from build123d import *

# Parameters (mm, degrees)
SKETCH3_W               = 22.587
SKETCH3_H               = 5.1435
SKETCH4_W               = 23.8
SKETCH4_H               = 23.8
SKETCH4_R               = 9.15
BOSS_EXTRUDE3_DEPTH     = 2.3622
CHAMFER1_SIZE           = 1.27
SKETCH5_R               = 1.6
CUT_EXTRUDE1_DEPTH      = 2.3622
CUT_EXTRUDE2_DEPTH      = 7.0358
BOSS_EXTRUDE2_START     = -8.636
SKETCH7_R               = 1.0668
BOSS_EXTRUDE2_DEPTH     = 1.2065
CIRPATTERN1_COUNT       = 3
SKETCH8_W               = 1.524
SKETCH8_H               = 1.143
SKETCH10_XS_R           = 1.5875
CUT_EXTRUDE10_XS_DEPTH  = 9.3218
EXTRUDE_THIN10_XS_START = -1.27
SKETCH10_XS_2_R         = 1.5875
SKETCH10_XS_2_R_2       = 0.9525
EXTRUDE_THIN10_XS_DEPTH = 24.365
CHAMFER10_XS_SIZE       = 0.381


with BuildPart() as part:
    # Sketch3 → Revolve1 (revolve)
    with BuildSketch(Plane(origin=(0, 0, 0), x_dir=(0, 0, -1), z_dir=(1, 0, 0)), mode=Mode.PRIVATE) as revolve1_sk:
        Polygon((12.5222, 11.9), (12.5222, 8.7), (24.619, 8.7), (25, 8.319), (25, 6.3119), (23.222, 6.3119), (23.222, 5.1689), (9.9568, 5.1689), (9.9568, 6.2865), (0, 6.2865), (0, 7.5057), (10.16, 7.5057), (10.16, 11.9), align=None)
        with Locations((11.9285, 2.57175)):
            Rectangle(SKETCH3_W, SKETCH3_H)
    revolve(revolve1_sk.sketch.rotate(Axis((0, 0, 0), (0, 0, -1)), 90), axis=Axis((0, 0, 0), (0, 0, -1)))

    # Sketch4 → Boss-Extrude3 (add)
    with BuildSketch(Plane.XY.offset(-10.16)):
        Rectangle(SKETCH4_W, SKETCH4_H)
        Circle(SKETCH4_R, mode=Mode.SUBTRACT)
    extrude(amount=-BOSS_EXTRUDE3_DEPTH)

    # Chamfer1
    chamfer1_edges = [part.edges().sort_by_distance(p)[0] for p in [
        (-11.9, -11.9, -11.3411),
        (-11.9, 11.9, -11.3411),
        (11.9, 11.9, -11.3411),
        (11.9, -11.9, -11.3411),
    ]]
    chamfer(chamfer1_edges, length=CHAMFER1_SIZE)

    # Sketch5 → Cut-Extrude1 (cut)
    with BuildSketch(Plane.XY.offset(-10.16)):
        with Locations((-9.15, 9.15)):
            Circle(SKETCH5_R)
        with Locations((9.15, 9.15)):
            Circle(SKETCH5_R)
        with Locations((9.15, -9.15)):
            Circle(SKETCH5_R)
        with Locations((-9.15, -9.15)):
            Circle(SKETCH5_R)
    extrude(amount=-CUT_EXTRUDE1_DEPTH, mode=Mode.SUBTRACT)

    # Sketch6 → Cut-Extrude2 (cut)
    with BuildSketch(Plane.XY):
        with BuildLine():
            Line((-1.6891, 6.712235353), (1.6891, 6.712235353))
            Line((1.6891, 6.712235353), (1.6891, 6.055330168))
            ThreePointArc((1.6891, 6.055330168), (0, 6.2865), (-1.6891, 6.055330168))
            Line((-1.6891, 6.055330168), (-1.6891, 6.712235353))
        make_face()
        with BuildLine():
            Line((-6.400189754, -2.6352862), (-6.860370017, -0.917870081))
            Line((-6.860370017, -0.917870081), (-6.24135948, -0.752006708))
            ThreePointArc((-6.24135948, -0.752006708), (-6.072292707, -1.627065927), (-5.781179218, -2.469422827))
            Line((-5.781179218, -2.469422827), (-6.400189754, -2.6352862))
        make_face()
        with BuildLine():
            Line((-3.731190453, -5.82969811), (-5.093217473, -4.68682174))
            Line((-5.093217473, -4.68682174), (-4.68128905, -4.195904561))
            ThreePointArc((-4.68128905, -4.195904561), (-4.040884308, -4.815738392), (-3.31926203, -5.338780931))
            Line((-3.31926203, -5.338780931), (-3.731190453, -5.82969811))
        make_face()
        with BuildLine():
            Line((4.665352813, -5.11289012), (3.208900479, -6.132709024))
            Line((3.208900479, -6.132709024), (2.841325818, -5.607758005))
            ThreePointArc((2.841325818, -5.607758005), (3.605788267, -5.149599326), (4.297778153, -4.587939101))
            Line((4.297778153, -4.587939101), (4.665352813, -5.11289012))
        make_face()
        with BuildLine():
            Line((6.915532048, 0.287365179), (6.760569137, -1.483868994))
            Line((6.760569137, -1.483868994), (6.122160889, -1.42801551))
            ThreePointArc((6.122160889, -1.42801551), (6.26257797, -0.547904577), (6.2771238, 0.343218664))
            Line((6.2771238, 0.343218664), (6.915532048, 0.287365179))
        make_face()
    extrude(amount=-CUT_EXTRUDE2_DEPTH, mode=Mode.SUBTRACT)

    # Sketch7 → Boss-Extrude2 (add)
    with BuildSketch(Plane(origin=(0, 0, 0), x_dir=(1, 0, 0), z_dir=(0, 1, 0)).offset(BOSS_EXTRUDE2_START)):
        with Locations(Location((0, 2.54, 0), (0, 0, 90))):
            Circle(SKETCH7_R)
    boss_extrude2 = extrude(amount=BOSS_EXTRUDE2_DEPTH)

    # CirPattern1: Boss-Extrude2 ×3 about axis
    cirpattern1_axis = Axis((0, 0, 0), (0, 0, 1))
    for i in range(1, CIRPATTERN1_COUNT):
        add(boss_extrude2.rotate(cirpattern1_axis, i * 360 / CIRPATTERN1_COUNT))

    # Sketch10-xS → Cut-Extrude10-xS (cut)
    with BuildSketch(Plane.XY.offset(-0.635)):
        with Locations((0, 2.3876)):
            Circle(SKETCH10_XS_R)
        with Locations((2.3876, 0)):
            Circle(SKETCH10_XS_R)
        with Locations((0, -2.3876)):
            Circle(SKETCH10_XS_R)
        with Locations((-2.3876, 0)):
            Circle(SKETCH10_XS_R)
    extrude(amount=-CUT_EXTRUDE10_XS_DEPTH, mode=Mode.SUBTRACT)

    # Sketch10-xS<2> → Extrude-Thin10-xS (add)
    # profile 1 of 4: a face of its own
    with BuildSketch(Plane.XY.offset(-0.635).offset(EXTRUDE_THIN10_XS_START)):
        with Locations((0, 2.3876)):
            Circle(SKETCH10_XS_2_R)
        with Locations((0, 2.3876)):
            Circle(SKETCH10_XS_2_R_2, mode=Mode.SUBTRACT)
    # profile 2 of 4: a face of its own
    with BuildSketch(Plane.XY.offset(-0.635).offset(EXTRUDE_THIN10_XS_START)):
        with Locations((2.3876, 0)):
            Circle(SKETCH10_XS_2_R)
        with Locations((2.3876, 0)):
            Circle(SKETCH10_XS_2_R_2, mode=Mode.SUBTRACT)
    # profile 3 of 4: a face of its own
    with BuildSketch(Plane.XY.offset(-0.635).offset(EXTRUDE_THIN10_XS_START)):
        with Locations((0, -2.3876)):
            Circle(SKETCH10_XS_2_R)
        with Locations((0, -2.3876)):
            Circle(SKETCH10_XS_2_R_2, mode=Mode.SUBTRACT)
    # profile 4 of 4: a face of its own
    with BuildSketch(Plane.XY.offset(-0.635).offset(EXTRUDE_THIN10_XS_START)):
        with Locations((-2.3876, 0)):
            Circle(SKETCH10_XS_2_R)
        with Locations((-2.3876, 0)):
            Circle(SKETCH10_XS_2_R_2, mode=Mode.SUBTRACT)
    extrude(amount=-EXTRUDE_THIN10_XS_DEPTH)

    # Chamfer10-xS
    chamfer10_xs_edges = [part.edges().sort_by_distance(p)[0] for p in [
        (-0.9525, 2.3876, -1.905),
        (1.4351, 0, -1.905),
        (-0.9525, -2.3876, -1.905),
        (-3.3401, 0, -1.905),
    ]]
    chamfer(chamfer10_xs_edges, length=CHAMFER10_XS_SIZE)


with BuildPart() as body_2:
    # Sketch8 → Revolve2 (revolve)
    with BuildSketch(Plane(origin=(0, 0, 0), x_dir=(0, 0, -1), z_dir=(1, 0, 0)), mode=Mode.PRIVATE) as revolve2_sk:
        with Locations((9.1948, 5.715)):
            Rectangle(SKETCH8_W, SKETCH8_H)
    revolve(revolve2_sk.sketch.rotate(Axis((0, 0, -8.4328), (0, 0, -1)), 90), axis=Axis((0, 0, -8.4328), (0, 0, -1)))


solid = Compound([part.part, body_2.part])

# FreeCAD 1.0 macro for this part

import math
import FreeCAD as App
import Part
import Sketcher
from FreeCAD import Vector
Q = App.Units.Quantity


def edges_at(feature, points):
    """Names of the edges that pass closest to the given points."""
    edges = feature.Shape.Edges
    near = lambda p: min(range(len(edges)), key=lambda i: edges[i].distToShape(Part.Vertex(*p))[0])
    return sorted({f"Edge{near(p) + 1}" for p in points})

doc = App.newDocument("Part")
body = doc.addObject("PartDesign::Body", "Body")
body.AllowCompound = True

# Sketch on YZ plane
sketch1 = doc.addObject("Sketcher::SketchObject", "Sketch")
body.addObject(sketch1)
sketch1.AttachmentSupport = (doc.YZ_Plane, [""])
sketch1.MapMode = "FlatFace"
sketch1.addGeometry([
    Part.LineSegment(Vector(8.7, -12.5, 0), Vector(11.9, -12.5, 0)),  # 0
    Part.LineSegment(Vector(11.9, -12.5, 0), Vector(11.9, -10.2, 0)),  # 1
    Part.LineSegment(Vector(11.9, -10.2, 0), Vector(7.5, -10.2, 0)),  # 2
    Part.LineSegment(Vector(7.5, -10.2, 0), Vector(7.5, 0, 0)),  # 3
    Part.LineSegment(Vector(7.5, 0, 0), Vector(6.3, 0, 0)),  # 4
    Part.LineSegment(Vector(6.3, 0, 0), Vector(6.3, -10, 0)),  # 5
    Part.LineSegment(Vector(6.3, -10, 0), Vector(5.2, -10, 0)),  # 6
    Part.LineSegment(Vector(5.2, -10, 0), Vector(5.2, -23.2, 0)),  # 7
    Part.LineSegment(Vector(5.2, -23.2, 0), Vector(6.3, -23.2, 0)),  # 8
    Part.LineSegment(Vector(6.3, -23.2, 0), Vector(6.3, -25, 0)),  # 9
    Part.LineSegment(Vector(6.3, -25, 0), Vector(8.3, -25, 0)),  # 10
    Part.LineSegment(Vector(8.3, -25, 0), Vector(8.7, -24.6, 0)),  # 11
    Part.LineSegment(Vector(8.7, -24.6, 0), Vector(8.7, -12.5, 0)),  # 12
    Part.LineSegment(Vector(5.1, -0.6, 0), Vector(0, -0.6, 0)),  # 13
    Part.LineSegment(Vector(0, -0.6, 0), Vector(0, -23.2, 0)),  # 14
    Part.LineSegment(Vector(0, -23.2, 0), Vector(5.1, -23.2, 0)),  # 15
    Part.LineSegment(Vector(5.1, -23.2, 0), Vector(5.1, -0.6, 0)),  # 16
], False)
sketch1.addConstraint([
    Sketcher.Constraint("Coincident", 0, 2, 1, 1),
    Sketcher.Constraint("Coincident", 1, 2, 2, 1),
    Sketcher.Constraint("Coincident", 2, 2, 3, 1),
    Sketcher.Constraint("Coincident", 3, 2, 4, 1),
    Sketcher.Constraint("Coincident", 4, 2, 5, 1),
    Sketcher.Constraint("Coincident", 5, 2, 6, 1),
    Sketcher.Constraint("Coincident", 6, 2, 7, 1),
    Sketcher.Constraint("Coincident", 7, 2, 8, 1),
    Sketcher.Constraint("Coincident", 8, 2, 9, 1),
    Sketcher.Constraint("Coincident", 9, 2, 10, 1),
    Sketcher.Constraint("Coincident", 10, 2, 11, 1),
    Sketcher.Constraint("Coincident", 11, 2, 12, 1),
    Sketcher.Constraint("Coincident", 12, 2, 0, 1),
    Sketcher.Constraint("Coincident", 13, 2, 14, 1),
    Sketcher.Constraint("Coincident", 14, 2, 15, 1),
    Sketcher.Constraint("Coincident", 15, 2, 16, 1),
    Sketcher.Constraint("Coincident", 16, 2, 13, 1),
    Sketcher.Constraint("Horizontal", 0),
    Sketcher.Constraint("Vertical", 1),
    Sketcher.Constraint("Horizontal", 2),
    Sketcher.Constraint("Vertical", 3),
    Sketcher.Constraint("Horizontal", 4),
    Sketcher.Constraint("Vertical", 5),
    Sketcher.Constraint("Horizontal", 6),
    Sketcher.Constraint("Vertical", 7),
    Sketcher.Constraint("Horizontal", 8),
    Sketcher.Constraint("Vertical", 9),
    Sketcher.Constraint("Horizontal", 10),
    Sketcher.Constraint("Vertical", 12),
    Sketcher.Constraint("Horizontal", 13),
    Sketcher.Constraint("Vertical", 14),
    Sketcher.Constraint("Horizontal", 15),
    Sketcher.Constraint("Vertical", 16),
    Sketcher.Constraint("PointOnObject", 3, 2, -1),
    Sketcher.Constraint("PointOnObject", 13, 2, -2),
    Sketcher.Constraint("Horizontal", 8, 2, 14, 2),
    Sketcher.Constraint("DistanceY", 3, 1, 3, 2, Q("0.4 in")),
    Sketcher.Constraint("Angle", 11, Q("45 deg")),
    Sketcher.Constraint("DistanceY", 9, 2, 9, 1, Q("0.07 in")),
    Sketcher.Constraint("DistanceX", 4, 2, 4, 1, Q("0.048 in")),
    Sketcher.Constraint("DistanceX", 6, 2, 6, 1, Q("0.044 in")),
    Sketcher.Constraint("DistanceX", 8, 1, 8, 2, Q("0.045 in")),
    Sketcher.Constraint("DistanceY", 1, 1, 1, 2, Q("0.093 in")),
    Sketcher.Constraint("DistanceY", 5, 2, 5, 1, Q("0.392 in")),
    Sketcher.Constraint("DistanceX", 13, 2, 13, 1, Q("0.2025 in")),
    Sketcher.Constraint("DistanceY", 13, 2, -1, 1, Q("0.025 in")),
    Sketcher.Constraint("DistanceX", 10, 2, 11, 2, Q("0.015 in")),
    Sketcher.Constraint("DistanceX", 15, 2, 7, 2, Q("0.001 in")),
    Sketcher.Constraint("DistanceX", 0, 1, 0, 2, 3.2),
    Sketcher.Constraint("DistanceX", 2, 2, 2, 1, 4.3943),
    Sketcher.Constraint("DistanceY", 7, 2, 7, 1, 13.2652),
])
revolution = doc.addObject("PartDesign::Revolution", "Revolution")
body.addObject(revolution)
revolution.Profile = sketch1
revolution.ReferenceAxis = (sketch1, ["V_Axis"])
revolution.Angle = 360

# Sketch on XY plane
sketch2 = doc.addObject("Sketcher::SketchObject", "Sketch001")
body.addObject(sketch2)
sketch2.AttachmentSupport = (doc.XY_Plane, [""])
sketch2.MapMode = "FlatFace"
sketch2.AttachmentOffset = App.Placement(Vector(0, 0, -0.4 * 25.4), App.Rotation())
sketch2.addGeometry([
    Part.LineSegment(Vector(-12, 12, 0), Vector(-12, -12, 0)),  # 0
    Part.LineSegment(Vector(-12, -12, 0), Vector(12, -12, 0)),  # 1
    Part.LineSegment(Vector(12, -12, 0), Vector(12, 12, 0)),  # 2
    Part.LineSegment(Vector(12, 12, 0), Vector(-12, 12, 0)),  # 3
    Part.Circle(Vector(0, 0, 0), Vector(0, 0, 1), 9),  # 4
], False)
sketch2.addConstraint([
    Sketcher.Constraint("Coincident", 0, 2, 1, 1),
    Sketcher.Constraint("Coincident", 1, 2, 2, 1),
    Sketcher.Constraint("Coincident", 2, 2, 3, 1),
    Sketcher.Constraint("Coincident", 3, 2, 0, 1),
    Sketcher.Constraint("Vertical", 0),
    Sketcher.Constraint("Horizontal", 1),
    Sketcher.Constraint("Vertical", 2),
    Sketcher.Constraint("Horizontal", 3),
    Sketcher.Constraint("Coincident", 4, 3, -1, 1),
    Sketcher.Constraint("Symmetric", 0, 2, 2, 2, -1, 1),
    Sketcher.Constraint("Equal", 3, 0),
    Sketcher.Constraint("Diameter", 4, 18.3),
    Sketcher.Constraint("DistanceX", 1, 1, 1, 2, 23.8),
])
pad1 = doc.addObject("PartDesign::Pad", "Pad")
body.addObject(pad1)
pad1.Profile = sketch2
pad1.Length = Q("0.093 in")
pad1.Reversed = True
doc.recompute()

chamfer = doc.addObject("PartDesign::Chamfer", "Chamfer")
body.addObject(chamfer)
chamfer.Base = (pad1, edges_at(pad1, [
    (-11.9, -11.9, -11.341),
    (-11.9, 11.9, -11.341),
    (11.9, 11.9, -11.341),
    (11.9, -11.9, -11.341),
]))
chamfer.Size = Q("0.05 in")

# Sketch on XY plane
sketch3 = doc.addObject("Sketcher::SketchObject", "Sketch002")
body.addObject(sketch3)
sketch3.AttachmentSupport = (doc.XY_Plane, [""])
sketch3.MapMode = "FlatFace"
sketch3.AttachmentOffset = App.Placement(Vector(0, 0, -0.4 * 25.4), App.Rotation())
sketch3.addGeometry([
    Part.Circle(Vector(-9.2, 9.2, 0), Vector(0, 0, 1), 1.6),
    Part.Circle(Vector(9.2, 9.2, 0), Vector(0, 0, 1), 1.6),
    Part.Circle(Vector(9.2, -9.2, 0), Vector(0, 0, 1), 1.6),
    Part.Circle(Vector(-9.2, -9.2, 0), Vector(0, 0, 1), 1.6),
], False)
sketch3.addConstraint([
    Sketcher.Constraint("Equal", 0, 1),
    Sketcher.Constraint("Equal", 1, 2),
    Sketcher.Constraint("Equal", 2, 3),
    Sketcher.Constraint("Symmetric", 0, 3, 2, 3, -1, 1),
    Sketcher.Constraint("Symmetric", 1, 3, 3, 3, -1, 1),
    Sketcher.Constraint("Symmetric", 0, 3, 1, 3, -2),
    Sketcher.Constraint("Diameter", 0, 3.2),
    Sketcher.Constraint("DistanceX", 0, 3, -1, 1, 9.15),
    Sketcher.Constraint("DistanceY", -1, 1, 0, 3, 9.15),
])
pocket1 = doc.addObject("PartDesign::Pocket", "Pocket")
body.addObject(pocket1)
pocket1.Profile = sketch3
pocket1.Length = Q("0.093 in")

# Sketch on XY plane
sketch4 = doc.addObject("Sketcher::SketchObject", "Sketch003")
body.addObject(sketch4)
sketch4.AttachmentSupport = (doc.XY_Plane, [""])
sketch4.MapMode = "FlatFace"
sketch4.addGeometry([
    Part.LineSegment(Vector(1.7, 6.7, 0), Vector(-1.7, 6.7, 0)),  # 0
    Part.LineSegment(Vector(-1.7, 6.7, 0), Vector(-1.7, 6.1, 0)),  # 1
    Part.ArcOfCircle(Part.Circle(Vector(0, 0, 0), Vector(0, 0, 1), 6.3), math.radians(74), math.radians(106)),  # 2
    Part.LineSegment(Vector(1.7, 6.1, 0), Vector(1.7, 6.7, 0)),  # 3
    Part.LineSegment(Vector(-6.9, -0.9, 0), Vector(-6.4, -2.6, 0)),  # 4
    Part.LineSegment(Vector(-6.4, -2.6, 0), Vector(-5.8, -2.5, 0)),  # 5
    Part.ArcOfCircle(Part.Circle(Vector(0, 0, 0), Vector(0, 0, 1), 6.3), math.radians(-173.13), math.radians(-156.87)),  # 6
    Part.LineSegment(Vector(-6.2, -0.8, 0), Vector(-6.9, -0.9, 0)),  # 7
    Part.LineSegment(Vector(-5.1, -4.7, 0), Vector(-3.7, -5.8, 0)),  # 8
    Part.LineSegment(Vector(-3.7, -5.8, 0), Vector(-3.3, -5.3, 0)),  # 9
    Part.ArcOfCircle(Part.Circle(Vector(0, 0, 0), Vector(0, 0, 1), 6.3), math.radians(-138.13), math.radians(-121.87)),  # 10
    Part.LineSegment(Vector(-4.7, -4.2, 0), Vector(-5.1, -4.7, 0)),  # 11
    Part.LineSegment(Vector(3.2, -6.1, 0), Vector(4.7, -5.1, 0)),  # 12
    Part.LineSegment(Vector(4.7, -5.1, 0), Vector(4.3, -4.6, 0)),  # 13
    Part.ArcOfCircle(Part.Circle(Vector(0, 0, 0), Vector(0, 0, 1), 6.3), math.radians(-63.13), math.radians(-46.87)),  # 14
    Part.LineSegment(Vector(2.8, -5.6, 0), Vector(3.2, -6.1, 0)),  # 15
    Part.LineSegment(Vector(6.8, -1.5, 0), Vector(6.9, 0.3, 0)),  # 16
    Part.LineSegment(Vector(6.9, 0.3, 0), Vector(6.3, 0.3, 0)),  # 17
    Part.ArcOfCircle(Part.Circle(Vector(0, 0, 0), Vector(0, 0, 1), 6.3), math.radians(-13.13), math.radians(3.13)),  # 18
    Part.LineSegment(Vector(6.1, -1.4, 0), Vector(6.8, -1.5, 0)),  # 19
], False)
sketch4.addConstraint([
    Sketcher.Constraint("Coincident", 0, 2, 1, 1),
    Sketcher.Constraint("Coincident", 1, 2, 2, 2),
    Sketcher.Constraint("Coincident", 2, 1, 3, 1),
    Sketcher.Constraint("Coincident", 3, 2, 0, 1),
    Sketcher.Constraint("Coincident", 4, 2, 5, 1),
    Sketcher.Constraint("Coincident", 5, 2, 6, 2),
    Sketcher.Constraint("Coincident", 6, 1, 7, 1),
    Sketcher.Constraint("Coincident", 7, 2, 4, 1),
    Sketcher.Constraint("Coincident", 8, 2, 9, 1),
    Sketcher.Constraint("Coincident", 9, 2, 10, 2),
    Sketcher.Constraint("Coincident", 10, 1, 11, 1),
    Sketcher.Constraint("Coincident", 11, 2, 8, 1),
    Sketcher.Constraint("Coincident", 12, 2, 13, 1),
    Sketcher.Constraint("Coincident", 13, 2, 14, 2),
    Sketcher.Constraint("Coincident", 14, 1, 15, 1),
    Sketcher.Constraint("Coincident", 15, 2, 12, 1),
    Sketcher.Constraint("Coincident", 16, 2, 17, 1),
    Sketcher.Constraint("Coincident", 17, 2, 18, 2),
    Sketcher.Constraint("Coincident", 18, 1, 19, 1),
    Sketcher.Constraint("Coincident", 19, 2, 16, 1),
    Sketcher.Constraint("Horizontal", 0),
    Sketcher.Constraint("Vertical", 1),
    Sketcher.Constraint("Vertical", 3),
    Sketcher.Constraint("Coincident", 2, 3, -1, 1),
    Sketcher.Constraint("Coincident", 6, 3, -1, 1),
    Sketcher.Constraint("Coincident", 10, 3, -1, 1),
    Sketcher.Constraint("Coincident", 14, 3, -1, 1),
    Sketcher.Constraint("Coincident", 18, 3, -1, 1),
    Sketcher.Constraint("Equal", 2, 6),
    Sketcher.Constraint("Equal", 6, 10),
    Sketcher.Constraint("Equal", 10, 14),
    Sketcher.Constraint("Equal", 14, 18),
    Sketcher.Constraint("Perpendicular", 4, 5),
    Sketcher.Constraint("Parallel", 5, 7),
    Sketcher.Constraint("Perpendicular", 8, 9),
    Sketcher.Constraint("Parallel", 9, 11),
    Sketcher.Constraint("Perpendicular", 12, 13),
    Sketcher.Constraint("Parallel", 13, 15),
    Sketcher.Constraint("Perpendicular", 16, 17),
    Sketcher.Constraint("Parallel", 17, 19),
    Sketcher.Constraint("Horizontal", 1, 2, 2, 1),
    Sketcher.Constraint("Equal", 5, 7),
    Sketcher.Constraint("Equal", 4, 8),
    Sketcher.Constraint("Equal", 7, 9),
    Sketcher.Constraint("Equal", 9, 11),
    Sketcher.Constraint("Equal", 8, 12),
    Sketcher.Constraint("Equal", 11, 13),
    Sketcher.Constraint("Equal", 13, 15),
    Sketcher.Constraint("Equal", 12, 16),
    Sketcher.Constraint("Equal", 15, 17),
    Sketcher.Constraint("Equal", 17, 19),
    Sketcher.Constraint("Angle", 4, Q("-75 deg")),
    Sketcher.Constraint("Angle", 8, Q("-40 deg")),
    Sketcher.Constraint("Angle", 12, Q("35 deg")),
    Sketcher.Constraint("Angle", 16, Q("85 deg")),
    Sketcher.Constraint("Radius", 2, Q("0.2475 in")),
    Sketcher.Constraint("Distance", 4, Q("0.07 in")),
    Sketcher.Constraint("DistanceX", 0, 2, 0, 1, Q("0.133 in")),
    Sketcher.Constraint("DistanceY", 8, 2, -1, 1, 5.829698),
    Sketcher.Constraint("DistanceY", 1, 2, 1, 1, 0.656905),
])
pocket2 = doc.addObject("PartDesign::Pocket", "Pocket001")
body.addObject(pocket2)
pocket2.Profile = sketch4
pocket2.Length = Q("0.277 in")

# Sketch on XZ plane
sketch5 = doc.addObject("Sketcher::SketchObject", "Sketch004")
body.addObject(sketch5)
sketch5.AttachmentSupport = (doc.XZ_Plane, [""])
sketch5.MapMode = "FlatFace"
sketch5.AttachmentOffset = App.Placement(Vector(0, 0, 0.34 * 25.4), App.Rotation())
sketch5.addGeometry(Part.Circle(Vector(0, -2.5, 0), Vector(0, 0, 1), 1.1), False)
sketch5.addConstraint([
    Sketcher.Constraint("PointOnObject", 0, 3, -2),
    Sketcher.Constraint("Diameter", 0, Q("0.084 in")),
    Sketcher.Constraint("DistanceY", 0, 3, -1, 1, Q("0.1 in")),
])
pad2 = doc.addObject("PartDesign::Pad", "Pad001")
body.addObject(pad2)
pad2.Profile = sketch5
pad2.Length = Q("0.0475 in")
pad2.Reversed = True
doc.recompute()

polarpattern = doc.addObject("PartDesign::PolarPattern", "PolarPattern")
body.addObject(polarpattern)
polarpattern.Originals = [pad2]
polarpattern.Axis = (doc.Z_Axis, [""])
polarpattern.Angle = 360
polarpattern.Occurrences = 3
body.Tip = polarpattern

# Sketch on XY plane
sketch6 = doc.addObject("Sketcher::SketchObject", "Sketch005")
body.addObject(sketch6)
sketch6.AttachmentSupport = (doc.XY_Plane, [""])
sketch6.MapMode = "FlatFace"
sketch6.AttachmentOffset = App.Placement(Vector(0, 0, -0.025 * 25.4), App.Rotation())
sketch6.addGeometry([
    Part.Circle(Vector(0, 2.4, 0), Vector(0, 0, 1), 1.6),
    Part.Circle(Vector(2.4, 0, 0), Vector(0, 0, 1), 1.6),
    Part.Circle(Vector(0, -2.4, 0), Vector(0, 0, 1), 1.6),
    Part.Circle(Vector(-2.4, 0, 0), Vector(0, 0, 1), 1.6),
], False)
sketch6.addConstraint([
    Sketcher.Constraint("Equal", 0, 1),
    Sketcher.Constraint("Equal", 1, 2),
    Sketcher.Constraint("Equal", 2, 3),
    Sketcher.Constraint("Symmetric", 0, 3, 2, 3, -1, 1),
    Sketcher.Constraint("Symmetric", 1, 3, 3, 3, -1, 1),
    Sketcher.Constraint("PointOnObject", 0, 3, -2),
    Sketcher.Constraint("PointOnObject", 1, 3, -1),
    Sketcher.Constraint("Diameter", 0, Q("0.125 in")),
    Sketcher.Constraint("DistanceY", -1, 1, 0, 3, Q("0.094 in")),
    Sketcher.Constraint("DistanceX", -1, 1, 1, 3, Q("0.094 in")),
])
pocket3 = doc.addObject("PartDesign::Pocket", "Pocket002")
body.addObject(pocket3)
pocket3.Profile = sketch6
pocket3.Length = Q("0.367 in")

# Sketch on XY plane
sketch7 = doc.addObject("Sketcher::SketchObject", "Sketch006")
body.addObject(sketch7)
sketch7.AttachmentSupport = (doc.XY_Plane, [""])
sketch7.MapMode = "FlatFace"
sketch7.AttachmentOffset = App.Placement(Vector(0, 0, -0.075 * 25.4), App.Rotation())
sketch7.addGeometry([
    Part.Circle(Vector(0, 2.4, 0), Vector(0, 0, 1), 1.6),  # 0
    Part.Circle(Vector(0, 2.4, 0), Vector(0, 0, 1), 1),  # 1
    Part.Circle(Vector(2.4, 0, 0), Vector(0, 0, 1), 1.6),  # 2
    Part.Circle(Vector(2.4, 0, 0), Vector(0, 0, 1), 1),  # 3
    Part.Circle(Vector(0, -2.4, 0), Vector(0, 0, 1), 1.6),  # 4
    Part.Circle(Vector(0, -2.4, 0), Vector(0, 0, 1), 1),  # 5
    Part.Circle(Vector(-2.4, 0, 0), Vector(0, 0, 1), 1.6),  # 6
    Part.Circle(Vector(-2.4, 0, 0), Vector(0, 0, 1), 1),  # 7
], False)
sketch7.addConstraint([
    Sketcher.Constraint("Coincident", 1, 3, 0, 3),
    Sketcher.Constraint("Coincident", 3, 3, 2, 3),
    Sketcher.Constraint("Coincident", 5, 3, 4, 3),
    Sketcher.Constraint("Coincident", 7, 3, 6, 3),
    Sketcher.Constraint("Equal", 0, 2),
    Sketcher.Constraint("Equal", 1, 3),
    Sketcher.Constraint("Equal", 2, 4),
    Sketcher.Constraint("Equal", 3, 5),
    Sketcher.Constraint("Equal", 4, 6),
    Sketcher.Constraint("Equal", 5, 7),
    Sketcher.Constraint("Symmetric", 0, 3, 4, 3, -1, 1),
    Sketcher.Constraint("Symmetric", 2, 3, 6, 3, -1, 1),
    Sketcher.Constraint("PointOnObject", 0, 3, -2),
    Sketcher.Constraint("PointOnObject", 2, 3, -1),
    Sketcher.Constraint("Diameter", 0, Q("0.125 in")),
    Sketcher.Constraint("Diameter", 1, Q("0.075 in")),
    Sketcher.Constraint("DistanceY", -1, 1, 0, 3, Q("0.094 in")),
    Sketcher.Constraint("DistanceX", -1, 1, 2, 3, Q("0.094 in")),
])
pad3 = doc.addObject("PartDesign::Pad", "Pad002")
body.addObject(pad3)
pad3.Profile = sketch7
pad3.Length = 24.365
pad3.Reversed = True
doc.recompute()

chamfer2 = doc.addObject("PartDesign::Chamfer", "Chamfer001")
body.addObject(chamfer2)
chamfer2.Base = (pad3, edges_at(pad3, [
    (-0.953, 2.388, -1.905),
    (1.435, 0, -1.905),
    (-0.953, -2.388, -1.905),
    (-3.34, 0, -1.905),
]))
chamfer2.Size = Q("0.015 in")
body2 = doc.addObject("PartDesign::Body", "Body001")

# Sketch on YZ plane
sketch8 = doc.addObject("Sketcher::SketchObject", "Sketch007")
body2.addObject(sketch8)
sketch8.AttachmentSupport = (doc.getObject("YZ_Plane001"), [""])
sketch8.MapMode = "FlatFace"
sketch8.addGeometry([
    Part.LineSegment(Vector(6.3, -8.4, 0), Vector(5.1, -8.4, 0)),
    Part.LineSegment(Vector(5.1, -8.4, 0), Vector(5.1, -10, 0)),
    Part.LineSegment(Vector(5.1, -10, 0), Vector(6.3, -10, 0)),
    Part.LineSegment(Vector(6.3, -10, 0), Vector(6.3, -8.4, 0)),
], False)
sketch8.addConstraint([
    Sketcher.Constraint("Coincident", 0, 2, 1, 1),
    Sketcher.Constraint("Coincident", 1, 2, 2, 1),
    Sketcher.Constraint("Coincident", 2, 2, 3, 1),
    Sketcher.Constraint("Coincident", 3, 2, 0, 1),
    Sketcher.Constraint("Horizontal", 0),
    Sketcher.Constraint("Vertical", 1),
    Sketcher.Constraint("Horizontal", 2),
    Sketcher.Constraint("Vertical", 3),
    Sketcher.Constraint("DistanceY", 1, 2, 1, 1, Q("0.06 in")),
    Sketcher.Constraint("DistanceX", 0, 2, 0, 1, Q("0.045 in")),
    Sketcher.Constraint("DistanceY", 0, 2, -1, 1, Q("0.332 in")),
    Sketcher.Constraint("DistanceX", -1, 1, 0, 2, Q("0.2025 in")),
])
revolution2 = doc.addObject("PartDesign::Revolution", "Revolution001")
body2.addObject(revolution2)
revolution2.Profile = sketch8
revolution2.ReferenceAxis = (sketch8, ["V_Axis"])
revolution2.Angle = 360

doc.recompute()
